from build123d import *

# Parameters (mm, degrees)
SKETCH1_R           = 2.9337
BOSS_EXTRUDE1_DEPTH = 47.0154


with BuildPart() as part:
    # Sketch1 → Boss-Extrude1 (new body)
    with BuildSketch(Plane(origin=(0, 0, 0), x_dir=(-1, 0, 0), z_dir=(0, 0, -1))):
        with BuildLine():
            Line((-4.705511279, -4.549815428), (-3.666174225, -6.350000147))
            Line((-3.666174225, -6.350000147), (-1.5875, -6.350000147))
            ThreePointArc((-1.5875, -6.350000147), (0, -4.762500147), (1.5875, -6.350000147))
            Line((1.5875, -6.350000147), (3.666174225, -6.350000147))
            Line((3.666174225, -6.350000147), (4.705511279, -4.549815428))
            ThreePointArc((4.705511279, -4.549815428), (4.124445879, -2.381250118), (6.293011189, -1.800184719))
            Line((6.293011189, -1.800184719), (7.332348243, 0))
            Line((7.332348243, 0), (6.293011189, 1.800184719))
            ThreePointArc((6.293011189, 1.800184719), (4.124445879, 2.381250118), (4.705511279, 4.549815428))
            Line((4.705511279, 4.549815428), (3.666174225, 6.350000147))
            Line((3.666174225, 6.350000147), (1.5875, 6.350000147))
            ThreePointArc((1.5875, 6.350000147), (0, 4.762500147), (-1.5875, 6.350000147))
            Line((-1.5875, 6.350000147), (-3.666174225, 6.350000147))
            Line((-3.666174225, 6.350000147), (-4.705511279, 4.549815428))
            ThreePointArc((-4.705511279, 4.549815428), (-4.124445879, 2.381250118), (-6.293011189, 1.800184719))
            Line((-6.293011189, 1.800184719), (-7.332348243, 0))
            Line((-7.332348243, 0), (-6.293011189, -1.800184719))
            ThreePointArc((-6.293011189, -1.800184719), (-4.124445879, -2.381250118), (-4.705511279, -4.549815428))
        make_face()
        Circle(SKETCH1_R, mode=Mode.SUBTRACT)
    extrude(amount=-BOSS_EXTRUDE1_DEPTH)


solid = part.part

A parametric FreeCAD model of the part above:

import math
import FreeCAD as App
import Part
import Sketcher
Q = App.Units.Quantity

doc = App.newDocument("Part")
body = doc.addObject("PartDesign::Body", "Body")

sketch1 = body.newObject("Sketcher::SketchObject", "Sketch")
sketch1.AttachmentSupport = (doc.getObject("XY_Plane"), [""])
sketch1.MapMode = "FlatFace"
sketch1.addGeometry([
    Part.LineSegment(App.Vector(4.7, -4.5, 0), App.Vector(3.7, -6.4, 0)),
    Part.LineSegment(App.Vector(3.7, -6.4, 0), App.Vector(1.6, -6.4, 0)),
    Part.ArcOfCircle(Part.Circle(App.Vector(0, -6.4, 0), App.Vector(0, 0, 1), 1.6), math.radians(0), math.radians(180)),
    Part.LineSegment(App.Vector(-1.6, -6.4, 0), App.Vector(-3.7, -6.4, 0)),
    Part.LineSegment(App.Vector(-3.7, -6.4, 0), App.Vector(-4.7, -4.5, 0)),
    Part.ArcOfCircle(Part.Circle(App.Vector(-5.5, -3.2, 0), App.Vector(0, 0, 1), 1.6), math.radians(-60), math.radians(120)),
    Part.LineSegment(App.Vector(-6.3, -1.8, 0), App.Vector(-7.3, 0, 0)),
    Part.LineSegment(App.Vector(-7.3, 0, 0), App.Vector(-6.3, 1.8, 0)),
    Part.ArcOfCircle(Part.Circle(App.Vector(-5.5, 3.2, 0), App.Vector(0, 0, 1), 1.6), math.radians(-120), math.radians(60)),
    Part.LineSegment(App.Vector(-4.7, 4.5, 0), App.Vector(-3.7, 6.4, 0)),
    Part.LineSegment(App.Vector(-3.7, 6.4, 0), App.Vector(-1.6, 6.4, 0)),
    Part.ArcOfCircle(Part.Circle(App.Vector(0, 6.4, 0), App.Vector(0, 0, 1), 1.6), math.radians(180), math.radians(360)),
    Part.LineSegment(App.Vector(1.6, 6.4, 0), App.Vector(3.7, 6.4, 0)),
    Part.LineSegment(App.Vector(3.7, 6.4, 0), App.Vector(4.7, 4.5, 0)),
    Part.ArcOfCircle(Part.Circle(App.Vector(5.5, 3.2, 0), App.Vector(0, 0, 1), 1.6), math.radians(120), math.radians(300)),
    Part.LineSegment(App.Vector(6.3, 1.8, 0), App.Vector(7.3, 0, 0)),
    Part.LineSegment(App.Vector(7.3, 0, 0), App.Vector(6.3, -1.8, 0)),
    Part.ArcOfCircle(Part.Circle(App.Vector(5.5, -3.2, 0), App.Vector(0, 0, 1), 1.6), math.radians(60), math.radians(240)),
    Part.Circle(App.Vector(0, 0, 0), App.Vector(0, 0, 1), 2.9),
], False)
sketch1.addConstraint([
    Sketcher.Constraint("Coincident", 0, 2, 1, 1),
    Sketcher.Constraint("Coincident", 1, 2, 2, 1),
    Sketcher.Constraint("Coincident", 2, 2, 3, 1),
    Sketcher.Constraint("Coincident", 3, 2, 4, 1),
    Sketcher.Constraint("Coincident", 4, 2, 5, 1),
    Sketcher.Constraint("Coincident", 5, 2, 6, 1),
    Sketcher.Constraint("Coincident", 6, 2, 7, 1),
    Sketcher.Constraint("Coincident", 7, 2, 8, 1),
    Sketcher.Constraint("Coincident", 8, 2, 9, 1),
    Sketcher.Constraint("Coincident", 9, 2, 10, 1),
    Sketcher.Constraint("Coincident", 10, 2, 11, 1),
    Sketcher.Constraint("Coincident", 11, 2, 12, 1),
    Sketcher.Constraint("Coincident", 12, 2, 13, 1),
    Sketcher.Constraint("Coincident", 13, 2, 14, 1),
    Sketcher.Constraint("Coincident", 14, 2, 15, 1),
    Sketcher.Constraint("Coincident", 15, 2, 16, 1),
    Sketcher.Constraint("Coincident", 16, 2, 17, 1),
    Sketcher.Constraint("Coincident", 17, 2, 0, 1),
    Sketcher.Constraint("Horizontal", 1),
    Sketcher.Constraint("Horizontal", 3),
    Sketcher.Constraint("Horizontal", 10),
    Sketcher.Constraint("Horizontal", 12),
    Sketcher.Constraint("Coincident", 18, 3, -1, 1),
    Sketcher.Constraint("Equal", 2, 5),
    Sketcher.Constraint("Equal", 5, 8),
    Sketcher.Constraint("Equal", 8, 11),
    Sketcher.Constraint("Equal", 11, 14),
    Sketcher.Constraint("Equal", 14, 17),
    Sketcher.Constraint("Symmetric", 2, 3, 11, 3, -1, 1),
    Sketcher.Constraint("Symmetric", 5, 3, 14, 3, -1, 1),
    Sketcher.Constraint("Symmetric", 8, 3, 17, 3, -1, 1),
    Sketcher.Constraint("Symmetric", 0, 2, 9, 2, -1, 1),
    Sketcher.Constraint("Symmetric", 3, 2, 12, 2, -1, 1),
    Sketcher.Constraint("Symmetric", 6, 2, 15, 2, -1, 1),
    Sketcher.Constraint("Symmetric", 8, 3, 14, 3, -2),
    Sketcher.Constraint("Symmetric", 1, 2, 2, 2, -2),
    Sketcher.Constraint("PointOnObject", 6, 2, -1),
    Sketcher.Constraint("Parallel", 4, 6),
    Sketcher.Constraint("Parallel", 0, 7),
    Sketcher.Constraint("Parallel", 7, 9),
    Sketcher.Constraint("Parallel", 6, 13),
    Sketcher.Constraint("Parallel", 13, 15),
    Sketcher.Constraint("Parallel", 9, 16),
    Sketcher.Constraint("Horizontal", 2, 3, 0, 2),
    Sketcher.Constraint("Horizontal", 8, 2, 13, 2),
    Sketcher.Constraint("Horizontal", 7, 2, 14, 2),
    Sketcher.Constraint("Equal", 4, 6),
    Sketcher.Constraint("Diameter", 18, Q("0.231 in")),
    Sketcher.Constraint("Angle", 0, Q("-119.999998 deg")),
    Sketcher.Constraint("Radius", 2, Q("0.0625 in")),
    Sketcher.Constraint("DistanceY", 2, 3, 11, 3, Q("0.5 in")),
    Sketcher.Constraint("DistanceY", 5, 3, 8, 3, Q("0.25 in")),
    Sketcher.Constraint("DistanceX", 5, 3, 4, 2, Q("0.03125 in")),
    Sketcher.Constraint("DistanceX", 1, 2, 1, 1, 2.078674),
])
pad1 = body.newObject("PartDesign::Pad", "Pad")
pad1.Profile = sketch1
pad1.Length = Q("1.851 in")

doc.recompute()
